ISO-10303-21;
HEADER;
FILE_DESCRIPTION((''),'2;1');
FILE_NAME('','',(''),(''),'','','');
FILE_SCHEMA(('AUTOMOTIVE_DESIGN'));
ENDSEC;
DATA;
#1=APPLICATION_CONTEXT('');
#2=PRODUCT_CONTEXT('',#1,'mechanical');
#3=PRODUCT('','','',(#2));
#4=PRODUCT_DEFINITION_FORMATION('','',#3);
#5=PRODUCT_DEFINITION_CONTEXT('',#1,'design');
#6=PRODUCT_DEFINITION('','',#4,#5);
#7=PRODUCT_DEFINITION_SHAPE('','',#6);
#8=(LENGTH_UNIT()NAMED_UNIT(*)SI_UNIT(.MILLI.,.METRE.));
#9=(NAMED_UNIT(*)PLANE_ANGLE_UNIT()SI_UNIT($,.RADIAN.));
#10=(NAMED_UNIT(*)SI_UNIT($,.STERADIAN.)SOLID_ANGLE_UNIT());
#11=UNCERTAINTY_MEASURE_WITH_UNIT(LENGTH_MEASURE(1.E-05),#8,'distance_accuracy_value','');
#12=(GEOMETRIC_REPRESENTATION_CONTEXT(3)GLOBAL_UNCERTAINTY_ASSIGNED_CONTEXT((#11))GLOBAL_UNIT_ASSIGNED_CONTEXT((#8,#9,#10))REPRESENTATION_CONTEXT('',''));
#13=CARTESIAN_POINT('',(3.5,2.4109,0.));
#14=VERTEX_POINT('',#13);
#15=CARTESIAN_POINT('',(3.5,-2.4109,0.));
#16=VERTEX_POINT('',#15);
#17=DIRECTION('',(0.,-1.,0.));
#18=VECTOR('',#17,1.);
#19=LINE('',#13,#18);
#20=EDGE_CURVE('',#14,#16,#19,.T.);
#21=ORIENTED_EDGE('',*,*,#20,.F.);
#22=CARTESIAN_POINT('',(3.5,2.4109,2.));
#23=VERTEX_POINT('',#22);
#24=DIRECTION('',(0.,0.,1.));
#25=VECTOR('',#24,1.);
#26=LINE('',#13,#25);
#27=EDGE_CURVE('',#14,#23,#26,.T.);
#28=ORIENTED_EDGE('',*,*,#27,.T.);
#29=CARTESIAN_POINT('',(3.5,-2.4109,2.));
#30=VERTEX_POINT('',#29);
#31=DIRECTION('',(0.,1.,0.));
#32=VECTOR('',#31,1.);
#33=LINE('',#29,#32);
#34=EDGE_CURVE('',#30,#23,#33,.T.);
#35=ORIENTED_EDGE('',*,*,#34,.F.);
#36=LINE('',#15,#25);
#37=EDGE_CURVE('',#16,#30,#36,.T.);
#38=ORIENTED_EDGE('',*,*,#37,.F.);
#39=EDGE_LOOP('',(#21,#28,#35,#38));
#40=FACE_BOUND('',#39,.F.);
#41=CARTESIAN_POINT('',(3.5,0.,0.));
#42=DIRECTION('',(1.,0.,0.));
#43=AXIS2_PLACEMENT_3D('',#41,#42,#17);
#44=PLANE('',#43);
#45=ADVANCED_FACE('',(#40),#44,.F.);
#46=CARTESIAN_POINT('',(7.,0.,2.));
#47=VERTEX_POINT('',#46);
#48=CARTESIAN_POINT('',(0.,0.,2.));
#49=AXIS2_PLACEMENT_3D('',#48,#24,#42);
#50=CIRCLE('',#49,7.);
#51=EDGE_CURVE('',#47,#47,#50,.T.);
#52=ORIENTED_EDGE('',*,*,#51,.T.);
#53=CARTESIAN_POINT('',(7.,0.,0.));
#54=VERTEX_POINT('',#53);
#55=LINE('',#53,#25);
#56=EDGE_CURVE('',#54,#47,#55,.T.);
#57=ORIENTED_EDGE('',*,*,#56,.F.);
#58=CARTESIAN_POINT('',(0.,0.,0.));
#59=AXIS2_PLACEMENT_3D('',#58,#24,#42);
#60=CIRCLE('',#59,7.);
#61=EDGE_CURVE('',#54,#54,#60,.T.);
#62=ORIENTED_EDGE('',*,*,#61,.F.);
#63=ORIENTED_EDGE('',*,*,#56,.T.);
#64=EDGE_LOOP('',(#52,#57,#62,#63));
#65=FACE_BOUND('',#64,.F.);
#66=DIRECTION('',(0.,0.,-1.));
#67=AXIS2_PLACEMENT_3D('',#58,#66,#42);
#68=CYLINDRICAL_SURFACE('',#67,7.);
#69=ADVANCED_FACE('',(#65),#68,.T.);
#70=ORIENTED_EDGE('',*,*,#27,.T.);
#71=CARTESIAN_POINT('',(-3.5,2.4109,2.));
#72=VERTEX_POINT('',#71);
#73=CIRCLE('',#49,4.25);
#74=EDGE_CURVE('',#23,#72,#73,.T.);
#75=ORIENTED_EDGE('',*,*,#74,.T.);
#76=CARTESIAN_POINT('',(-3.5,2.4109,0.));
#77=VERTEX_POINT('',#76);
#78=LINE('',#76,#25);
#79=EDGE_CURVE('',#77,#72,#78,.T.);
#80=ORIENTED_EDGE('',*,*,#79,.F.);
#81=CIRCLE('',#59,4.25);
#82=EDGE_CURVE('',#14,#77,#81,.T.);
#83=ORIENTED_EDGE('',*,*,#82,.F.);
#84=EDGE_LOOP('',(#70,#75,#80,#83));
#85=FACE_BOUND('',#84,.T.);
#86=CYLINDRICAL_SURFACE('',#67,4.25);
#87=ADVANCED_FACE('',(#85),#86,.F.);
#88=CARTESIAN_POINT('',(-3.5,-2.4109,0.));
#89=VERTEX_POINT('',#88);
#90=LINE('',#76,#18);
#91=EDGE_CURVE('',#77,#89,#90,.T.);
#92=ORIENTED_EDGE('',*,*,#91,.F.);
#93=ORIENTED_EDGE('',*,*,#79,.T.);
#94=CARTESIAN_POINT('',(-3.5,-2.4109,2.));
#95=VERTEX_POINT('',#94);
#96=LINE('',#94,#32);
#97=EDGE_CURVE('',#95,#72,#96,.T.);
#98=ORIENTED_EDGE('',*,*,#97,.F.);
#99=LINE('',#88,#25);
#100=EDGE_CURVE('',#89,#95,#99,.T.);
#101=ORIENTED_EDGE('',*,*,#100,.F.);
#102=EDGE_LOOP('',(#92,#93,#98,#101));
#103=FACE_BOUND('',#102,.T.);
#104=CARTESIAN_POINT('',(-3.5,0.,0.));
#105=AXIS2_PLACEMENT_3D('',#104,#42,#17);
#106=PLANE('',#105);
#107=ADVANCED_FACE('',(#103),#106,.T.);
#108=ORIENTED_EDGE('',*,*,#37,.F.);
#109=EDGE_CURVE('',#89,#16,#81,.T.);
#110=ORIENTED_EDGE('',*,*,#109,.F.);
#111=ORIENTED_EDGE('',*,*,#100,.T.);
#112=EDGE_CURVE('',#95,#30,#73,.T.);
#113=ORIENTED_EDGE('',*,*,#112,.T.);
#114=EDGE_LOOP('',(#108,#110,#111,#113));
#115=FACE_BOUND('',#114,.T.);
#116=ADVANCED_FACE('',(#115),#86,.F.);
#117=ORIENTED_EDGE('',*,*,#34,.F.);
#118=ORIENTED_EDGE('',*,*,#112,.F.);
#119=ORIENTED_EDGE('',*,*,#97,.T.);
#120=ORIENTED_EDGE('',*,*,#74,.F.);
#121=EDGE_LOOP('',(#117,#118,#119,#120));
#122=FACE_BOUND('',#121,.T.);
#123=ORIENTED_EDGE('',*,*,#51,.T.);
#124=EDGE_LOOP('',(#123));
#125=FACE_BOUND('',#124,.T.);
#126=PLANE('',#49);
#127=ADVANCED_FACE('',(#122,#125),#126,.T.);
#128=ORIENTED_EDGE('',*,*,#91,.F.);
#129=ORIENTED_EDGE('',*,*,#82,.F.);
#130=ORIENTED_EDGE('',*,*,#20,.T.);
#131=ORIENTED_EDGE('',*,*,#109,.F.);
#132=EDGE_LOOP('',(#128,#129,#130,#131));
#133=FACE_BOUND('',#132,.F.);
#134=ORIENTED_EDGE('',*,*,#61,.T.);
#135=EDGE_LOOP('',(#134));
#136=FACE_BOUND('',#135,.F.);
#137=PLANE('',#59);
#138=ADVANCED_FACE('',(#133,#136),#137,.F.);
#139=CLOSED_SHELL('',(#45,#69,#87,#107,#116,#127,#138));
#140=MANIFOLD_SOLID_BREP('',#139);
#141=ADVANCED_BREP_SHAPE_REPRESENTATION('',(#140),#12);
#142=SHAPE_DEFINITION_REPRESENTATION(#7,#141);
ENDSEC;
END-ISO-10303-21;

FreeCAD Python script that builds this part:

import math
import FreeCAD as App
import Part
import Sketcher

doc = App.newDocument("Part")
body = doc.addObject("PartDesign::Body", "Body")

sketch1 = doc.addObject("Sketcher::SketchObject", "Sketch")
body.addObject(sketch1)
sketch1.AttachmentSupport = (doc.XY_Plane, [""])
sketch1.MapMode = "FlatFace"
sketch1.addGeometry([
    Part.Circle(App.Vector(0, 0, 0), App.Vector(0, 0, 1), 7),
    Part.ArcOfCircle(Part.Circle(App.Vector(0, 0, 0), App.Vector(0, 0, 1), 4.2), math.radians(-145), math.radians(-35)),
    Part.LineSegment(App.Vector(-3.5, -2.4, 0), App.Vector(-3.5, 2.4, 0)),
    Part.ArcOfCircle(Part.Circle(App.Vector(0, 0, 0), App.Vector(0, 0, 1), 4.2), math.radians(35), math.radians(145)),
    Part.LineSegment(App.Vector(3.5, 2.4, 0), App.Vector(3.5, -2.4, 0)),
], False)
sketch1.addConstraint([
    Sketcher.Constraint("Coincident", 1, 1, 2, 1),
    Sketcher.Constraint("Coincident", 2, 2, 3, 2),
    Sketcher.Constraint("Coincident", 3, 1, 4, 1),
    Sketcher.Constraint("Coincident", 4, 2, 1, 2),
    Sketcher.Constraint("Vertical", 2),
    Sketcher.Constraint("Vertical", 4),
    Sketcher.Constraint("Coincident", 0, 3, -1, 1),
    Sketcher.Constraint("Coincident", 1, 3, -1, 1),
    Sketcher.Constraint("Coincident", 3, 3, -1, 1),
    Sketcher.Constraint("Equal", 1, 3),
    Sketcher.Constraint("Horizontal", 2, 2, 3, 1),
    Sketcher.Constraint("Diameter", 0, 14.0),
    Sketcher.Constraint("Radius", 1, 4.25),
    Sketcher.Constraint("DistanceX", 2, 2, 3, 1, 7.0),
])
pad1 = doc.addObject("PartDesign::Pad", "Pad")
body.addObject(pad1)
pad1.Profile = sketch1
pad1.Length = 2

doc.recompute()
